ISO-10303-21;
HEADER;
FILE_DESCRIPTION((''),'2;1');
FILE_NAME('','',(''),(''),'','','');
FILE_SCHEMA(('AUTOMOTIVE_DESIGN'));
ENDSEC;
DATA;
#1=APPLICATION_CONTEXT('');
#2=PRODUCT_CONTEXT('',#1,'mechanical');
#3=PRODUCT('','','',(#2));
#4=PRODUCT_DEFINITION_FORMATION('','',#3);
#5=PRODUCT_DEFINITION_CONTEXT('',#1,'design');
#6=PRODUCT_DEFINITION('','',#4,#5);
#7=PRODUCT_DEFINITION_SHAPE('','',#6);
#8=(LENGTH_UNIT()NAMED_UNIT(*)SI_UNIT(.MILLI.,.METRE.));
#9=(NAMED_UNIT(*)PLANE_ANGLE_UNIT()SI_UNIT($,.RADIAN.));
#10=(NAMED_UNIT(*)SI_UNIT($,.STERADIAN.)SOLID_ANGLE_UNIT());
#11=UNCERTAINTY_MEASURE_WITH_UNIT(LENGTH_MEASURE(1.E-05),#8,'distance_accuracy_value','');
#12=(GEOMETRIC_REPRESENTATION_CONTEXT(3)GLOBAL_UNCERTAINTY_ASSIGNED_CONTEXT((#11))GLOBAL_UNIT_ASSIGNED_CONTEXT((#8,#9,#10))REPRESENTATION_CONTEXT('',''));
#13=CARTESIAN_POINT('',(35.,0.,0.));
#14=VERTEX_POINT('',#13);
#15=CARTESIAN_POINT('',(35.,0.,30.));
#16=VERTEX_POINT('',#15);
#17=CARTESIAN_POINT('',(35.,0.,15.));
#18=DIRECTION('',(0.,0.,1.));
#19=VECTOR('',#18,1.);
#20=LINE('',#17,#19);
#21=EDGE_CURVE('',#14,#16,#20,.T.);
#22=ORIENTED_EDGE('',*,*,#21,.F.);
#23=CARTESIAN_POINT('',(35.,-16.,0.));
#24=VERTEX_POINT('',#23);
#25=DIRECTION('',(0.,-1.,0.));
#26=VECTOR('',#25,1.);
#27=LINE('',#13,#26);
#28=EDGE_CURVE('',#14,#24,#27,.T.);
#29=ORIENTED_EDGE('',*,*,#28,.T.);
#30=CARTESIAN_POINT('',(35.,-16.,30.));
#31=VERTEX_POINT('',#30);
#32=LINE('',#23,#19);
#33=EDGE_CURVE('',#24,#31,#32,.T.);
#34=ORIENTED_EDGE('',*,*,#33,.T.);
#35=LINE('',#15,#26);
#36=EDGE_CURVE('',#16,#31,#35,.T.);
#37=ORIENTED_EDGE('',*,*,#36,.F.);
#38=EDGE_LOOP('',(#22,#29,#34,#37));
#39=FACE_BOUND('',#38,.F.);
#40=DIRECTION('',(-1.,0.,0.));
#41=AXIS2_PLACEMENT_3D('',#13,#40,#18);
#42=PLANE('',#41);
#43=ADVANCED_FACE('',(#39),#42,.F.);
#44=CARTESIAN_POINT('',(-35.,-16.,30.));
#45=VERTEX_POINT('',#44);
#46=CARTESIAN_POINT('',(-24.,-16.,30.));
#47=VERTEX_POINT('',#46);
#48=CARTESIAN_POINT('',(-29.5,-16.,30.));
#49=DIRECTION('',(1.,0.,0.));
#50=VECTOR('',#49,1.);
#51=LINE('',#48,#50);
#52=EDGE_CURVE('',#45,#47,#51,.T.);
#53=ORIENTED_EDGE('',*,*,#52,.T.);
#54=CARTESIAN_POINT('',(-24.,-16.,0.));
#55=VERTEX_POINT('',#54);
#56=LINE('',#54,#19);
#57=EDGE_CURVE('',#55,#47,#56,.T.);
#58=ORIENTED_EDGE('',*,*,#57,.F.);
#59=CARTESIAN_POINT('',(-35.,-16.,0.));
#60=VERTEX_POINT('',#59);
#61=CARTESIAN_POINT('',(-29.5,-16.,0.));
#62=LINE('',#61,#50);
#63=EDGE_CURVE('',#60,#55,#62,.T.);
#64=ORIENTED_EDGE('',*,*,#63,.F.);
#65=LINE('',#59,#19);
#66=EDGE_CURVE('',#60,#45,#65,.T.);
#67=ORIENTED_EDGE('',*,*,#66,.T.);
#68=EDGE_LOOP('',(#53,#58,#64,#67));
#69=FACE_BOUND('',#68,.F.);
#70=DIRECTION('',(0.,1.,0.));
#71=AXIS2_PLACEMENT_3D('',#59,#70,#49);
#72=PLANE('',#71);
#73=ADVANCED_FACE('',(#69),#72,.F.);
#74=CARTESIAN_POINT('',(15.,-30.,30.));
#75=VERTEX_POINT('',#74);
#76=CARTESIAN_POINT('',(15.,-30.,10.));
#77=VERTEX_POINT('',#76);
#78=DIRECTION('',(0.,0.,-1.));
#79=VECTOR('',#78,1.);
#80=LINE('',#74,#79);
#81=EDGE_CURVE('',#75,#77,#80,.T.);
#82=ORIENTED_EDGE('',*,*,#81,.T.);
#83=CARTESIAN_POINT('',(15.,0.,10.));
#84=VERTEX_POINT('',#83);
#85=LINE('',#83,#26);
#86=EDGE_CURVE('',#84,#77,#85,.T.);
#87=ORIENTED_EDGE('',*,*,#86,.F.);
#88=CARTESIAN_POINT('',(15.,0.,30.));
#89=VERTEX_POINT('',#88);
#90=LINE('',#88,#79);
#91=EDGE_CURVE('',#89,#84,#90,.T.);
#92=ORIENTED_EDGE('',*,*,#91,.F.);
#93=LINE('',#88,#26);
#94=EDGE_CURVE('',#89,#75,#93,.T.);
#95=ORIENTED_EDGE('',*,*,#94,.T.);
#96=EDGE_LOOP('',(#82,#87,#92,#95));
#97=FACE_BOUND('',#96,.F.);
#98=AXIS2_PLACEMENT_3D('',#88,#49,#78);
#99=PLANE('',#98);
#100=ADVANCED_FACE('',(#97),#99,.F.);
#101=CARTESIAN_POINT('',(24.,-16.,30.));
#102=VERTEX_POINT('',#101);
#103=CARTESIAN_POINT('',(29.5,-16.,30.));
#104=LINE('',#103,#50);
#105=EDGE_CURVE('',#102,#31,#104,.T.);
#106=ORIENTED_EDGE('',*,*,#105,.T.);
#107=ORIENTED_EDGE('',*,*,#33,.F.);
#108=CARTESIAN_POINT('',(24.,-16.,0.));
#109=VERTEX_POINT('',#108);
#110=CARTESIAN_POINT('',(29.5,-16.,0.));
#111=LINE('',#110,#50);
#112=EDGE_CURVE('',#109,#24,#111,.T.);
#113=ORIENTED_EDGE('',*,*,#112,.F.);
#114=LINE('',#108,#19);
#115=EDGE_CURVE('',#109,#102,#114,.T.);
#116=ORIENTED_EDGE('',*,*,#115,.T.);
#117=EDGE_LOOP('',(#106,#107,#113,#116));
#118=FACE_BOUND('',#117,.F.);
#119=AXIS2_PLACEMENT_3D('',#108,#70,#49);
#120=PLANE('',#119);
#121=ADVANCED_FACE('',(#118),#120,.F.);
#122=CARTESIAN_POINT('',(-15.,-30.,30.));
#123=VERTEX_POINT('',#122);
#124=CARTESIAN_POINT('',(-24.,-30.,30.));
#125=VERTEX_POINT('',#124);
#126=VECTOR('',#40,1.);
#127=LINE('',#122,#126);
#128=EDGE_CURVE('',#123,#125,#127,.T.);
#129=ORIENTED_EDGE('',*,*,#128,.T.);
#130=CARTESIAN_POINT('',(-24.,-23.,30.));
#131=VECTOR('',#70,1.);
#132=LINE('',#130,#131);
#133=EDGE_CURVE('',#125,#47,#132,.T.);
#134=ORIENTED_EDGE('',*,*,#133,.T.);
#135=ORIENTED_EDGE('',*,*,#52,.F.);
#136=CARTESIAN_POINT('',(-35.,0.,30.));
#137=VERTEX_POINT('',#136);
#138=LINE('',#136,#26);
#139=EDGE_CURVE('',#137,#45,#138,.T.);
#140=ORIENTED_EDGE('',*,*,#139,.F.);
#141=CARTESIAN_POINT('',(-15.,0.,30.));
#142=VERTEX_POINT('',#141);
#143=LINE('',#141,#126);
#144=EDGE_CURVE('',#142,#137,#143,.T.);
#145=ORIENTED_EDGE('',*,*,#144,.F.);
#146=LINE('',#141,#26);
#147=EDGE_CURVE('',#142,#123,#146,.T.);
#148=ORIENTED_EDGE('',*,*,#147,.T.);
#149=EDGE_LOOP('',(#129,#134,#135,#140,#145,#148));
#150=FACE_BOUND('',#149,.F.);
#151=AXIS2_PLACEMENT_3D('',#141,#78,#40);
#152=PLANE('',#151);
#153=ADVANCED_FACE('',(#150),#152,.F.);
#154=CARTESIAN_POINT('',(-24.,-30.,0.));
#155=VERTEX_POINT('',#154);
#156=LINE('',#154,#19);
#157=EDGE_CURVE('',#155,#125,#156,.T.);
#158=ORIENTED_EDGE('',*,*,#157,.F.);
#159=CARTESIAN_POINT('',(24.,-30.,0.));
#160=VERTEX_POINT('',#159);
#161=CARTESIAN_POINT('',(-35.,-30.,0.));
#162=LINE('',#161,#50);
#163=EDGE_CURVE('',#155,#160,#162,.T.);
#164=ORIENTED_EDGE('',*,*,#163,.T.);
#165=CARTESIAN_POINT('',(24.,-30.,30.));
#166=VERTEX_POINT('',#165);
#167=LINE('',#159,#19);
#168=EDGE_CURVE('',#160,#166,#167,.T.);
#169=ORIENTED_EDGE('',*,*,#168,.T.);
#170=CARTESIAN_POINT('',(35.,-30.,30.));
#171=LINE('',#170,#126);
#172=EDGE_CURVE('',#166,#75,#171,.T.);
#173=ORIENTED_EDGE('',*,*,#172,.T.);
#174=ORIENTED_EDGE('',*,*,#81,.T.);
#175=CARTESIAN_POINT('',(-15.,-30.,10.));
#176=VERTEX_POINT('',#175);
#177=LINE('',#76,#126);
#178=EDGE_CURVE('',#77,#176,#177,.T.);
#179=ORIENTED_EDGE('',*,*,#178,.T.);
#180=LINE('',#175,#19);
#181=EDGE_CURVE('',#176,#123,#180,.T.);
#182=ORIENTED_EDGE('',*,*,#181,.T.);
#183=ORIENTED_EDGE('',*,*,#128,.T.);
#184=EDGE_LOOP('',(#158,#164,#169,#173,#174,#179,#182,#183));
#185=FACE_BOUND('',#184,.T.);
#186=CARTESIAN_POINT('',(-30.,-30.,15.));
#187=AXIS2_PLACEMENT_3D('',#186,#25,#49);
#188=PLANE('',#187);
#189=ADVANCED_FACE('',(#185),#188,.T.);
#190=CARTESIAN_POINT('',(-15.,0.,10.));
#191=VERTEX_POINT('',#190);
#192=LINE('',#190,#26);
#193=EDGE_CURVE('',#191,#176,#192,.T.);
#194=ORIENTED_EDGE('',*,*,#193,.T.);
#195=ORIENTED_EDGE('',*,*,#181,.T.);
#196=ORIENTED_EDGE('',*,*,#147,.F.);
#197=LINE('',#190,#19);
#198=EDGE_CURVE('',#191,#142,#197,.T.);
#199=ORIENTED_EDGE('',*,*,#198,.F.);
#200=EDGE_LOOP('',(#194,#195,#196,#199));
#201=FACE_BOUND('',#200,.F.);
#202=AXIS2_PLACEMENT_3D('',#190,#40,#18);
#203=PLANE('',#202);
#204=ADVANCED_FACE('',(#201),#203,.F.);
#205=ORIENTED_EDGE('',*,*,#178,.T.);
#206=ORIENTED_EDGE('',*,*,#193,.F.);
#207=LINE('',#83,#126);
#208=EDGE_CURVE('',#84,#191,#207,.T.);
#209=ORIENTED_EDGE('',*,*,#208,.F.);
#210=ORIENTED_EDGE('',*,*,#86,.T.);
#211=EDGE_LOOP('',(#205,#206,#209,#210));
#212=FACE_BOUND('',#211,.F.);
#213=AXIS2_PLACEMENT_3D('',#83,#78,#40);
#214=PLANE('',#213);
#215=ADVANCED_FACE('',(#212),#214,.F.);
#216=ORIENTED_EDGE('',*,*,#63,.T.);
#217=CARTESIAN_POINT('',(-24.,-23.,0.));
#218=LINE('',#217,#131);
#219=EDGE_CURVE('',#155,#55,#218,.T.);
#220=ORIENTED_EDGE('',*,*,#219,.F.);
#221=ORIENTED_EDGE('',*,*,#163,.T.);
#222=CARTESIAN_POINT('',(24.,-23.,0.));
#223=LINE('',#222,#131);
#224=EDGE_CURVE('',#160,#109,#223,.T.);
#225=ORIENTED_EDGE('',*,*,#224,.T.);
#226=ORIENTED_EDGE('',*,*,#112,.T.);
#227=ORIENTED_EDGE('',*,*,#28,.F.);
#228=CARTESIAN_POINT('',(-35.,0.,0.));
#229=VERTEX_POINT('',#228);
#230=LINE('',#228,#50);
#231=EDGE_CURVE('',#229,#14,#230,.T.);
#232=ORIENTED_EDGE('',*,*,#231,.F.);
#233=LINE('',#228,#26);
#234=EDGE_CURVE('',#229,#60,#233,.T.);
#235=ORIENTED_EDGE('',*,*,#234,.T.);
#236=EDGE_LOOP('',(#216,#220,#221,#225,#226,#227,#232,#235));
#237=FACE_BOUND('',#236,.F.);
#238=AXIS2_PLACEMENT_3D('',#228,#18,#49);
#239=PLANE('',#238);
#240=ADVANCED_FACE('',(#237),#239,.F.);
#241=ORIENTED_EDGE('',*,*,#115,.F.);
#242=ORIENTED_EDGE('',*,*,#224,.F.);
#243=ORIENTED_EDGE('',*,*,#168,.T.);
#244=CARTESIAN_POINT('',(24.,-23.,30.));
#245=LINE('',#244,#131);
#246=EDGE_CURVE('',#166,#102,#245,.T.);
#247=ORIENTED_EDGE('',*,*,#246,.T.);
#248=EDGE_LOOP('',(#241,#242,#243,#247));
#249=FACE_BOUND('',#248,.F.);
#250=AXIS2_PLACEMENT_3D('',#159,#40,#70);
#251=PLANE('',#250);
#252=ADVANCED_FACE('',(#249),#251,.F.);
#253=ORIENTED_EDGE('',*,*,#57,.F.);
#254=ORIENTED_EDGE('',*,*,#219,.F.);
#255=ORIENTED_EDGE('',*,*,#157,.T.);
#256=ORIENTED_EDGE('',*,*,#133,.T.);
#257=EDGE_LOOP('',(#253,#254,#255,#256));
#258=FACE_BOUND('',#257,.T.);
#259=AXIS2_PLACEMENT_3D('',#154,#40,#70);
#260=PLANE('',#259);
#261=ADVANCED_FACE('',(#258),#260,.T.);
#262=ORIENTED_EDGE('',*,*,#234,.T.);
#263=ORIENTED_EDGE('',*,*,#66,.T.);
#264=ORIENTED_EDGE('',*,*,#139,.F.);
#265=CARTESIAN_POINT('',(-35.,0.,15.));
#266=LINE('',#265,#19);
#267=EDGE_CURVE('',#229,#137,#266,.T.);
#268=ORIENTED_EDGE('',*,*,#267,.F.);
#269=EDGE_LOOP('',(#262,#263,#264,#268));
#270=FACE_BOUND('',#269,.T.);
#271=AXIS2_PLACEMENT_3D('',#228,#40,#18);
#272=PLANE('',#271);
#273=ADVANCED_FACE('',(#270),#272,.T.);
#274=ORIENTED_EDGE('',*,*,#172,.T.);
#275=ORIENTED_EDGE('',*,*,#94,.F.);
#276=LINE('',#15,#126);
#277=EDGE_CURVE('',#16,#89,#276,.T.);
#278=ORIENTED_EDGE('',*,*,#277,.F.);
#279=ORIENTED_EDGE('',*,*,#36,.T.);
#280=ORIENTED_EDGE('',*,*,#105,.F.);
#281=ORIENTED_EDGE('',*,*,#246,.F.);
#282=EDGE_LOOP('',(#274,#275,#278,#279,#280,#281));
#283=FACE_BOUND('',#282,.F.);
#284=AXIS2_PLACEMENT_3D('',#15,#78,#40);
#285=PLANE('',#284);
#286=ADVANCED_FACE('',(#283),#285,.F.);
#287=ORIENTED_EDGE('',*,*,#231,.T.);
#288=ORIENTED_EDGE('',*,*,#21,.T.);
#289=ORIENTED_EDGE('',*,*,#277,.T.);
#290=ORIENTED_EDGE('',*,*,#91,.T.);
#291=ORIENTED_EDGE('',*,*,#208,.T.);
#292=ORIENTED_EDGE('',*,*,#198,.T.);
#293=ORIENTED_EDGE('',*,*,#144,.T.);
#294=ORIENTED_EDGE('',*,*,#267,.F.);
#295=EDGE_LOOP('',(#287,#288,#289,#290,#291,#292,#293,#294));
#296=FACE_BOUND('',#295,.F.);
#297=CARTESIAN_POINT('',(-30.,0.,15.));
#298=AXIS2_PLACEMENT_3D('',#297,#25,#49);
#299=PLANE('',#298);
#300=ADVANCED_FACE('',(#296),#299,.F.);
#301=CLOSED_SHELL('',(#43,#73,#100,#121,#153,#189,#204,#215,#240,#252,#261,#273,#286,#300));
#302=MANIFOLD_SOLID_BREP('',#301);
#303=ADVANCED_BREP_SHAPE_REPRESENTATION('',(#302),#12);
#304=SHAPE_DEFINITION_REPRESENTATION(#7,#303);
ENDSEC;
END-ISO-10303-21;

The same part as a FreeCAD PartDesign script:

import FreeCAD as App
import Part
import Sketcher
Q = App.Units.Quantity

doc = App.newDocument("Part")
body = doc.addObject("PartDesign::Body", "Body")

sketch1 = body.newObject("Sketcher::SketchObject", "Sketch")
sketch1.AttachmentSupport = (doc.getObject("XZ_Plane"), [""])
sketch1.MapMode = "FlatFace"
sketch1.addGeometry([
    Part.LineSegment(App.Vector(-35, 30, 0), App.Vector(-35, 0, 0)),
    Part.LineSegment(App.Vector(-35, 0, 0), App.Vector(35, 0, 0)),
    Part.LineSegment(App.Vector(35, 0, 0), App.Vector(35, 30, 0)),
    Part.LineSegment(App.Vector(35, 30, 0), App.Vector(15, 30, 0)),
    Part.LineSegment(App.Vector(15, 30, 0), App.Vector(15, 10, 0)),
    Part.LineSegment(App.Vector(15, 10, 0), App.Vector(-15, 10, 0)),
    Part.LineSegment(App.Vector(-15, 10, 0), App.Vector(-15, 30, 0)),
    Part.LineSegment(App.Vector(-15, 30, 0), App.Vector(-35, 30, 0)),
], False)
sketch1.addConstraint([
    Sketcher.Constraint("Coincident", 0, 2, 1, 1),
    Sketcher.Constraint("Coincident", 1, 2, 2, 1),
    Sketcher.Constraint("Coincident", 2, 2, 3, 1),
    Sketcher.Constraint("Coincident", 3, 2, 4, 1),
    Sketcher.Constraint("Coincident", 4, 2, 5, 1),
    Sketcher.Constraint("Coincident", 5, 2, 6, 1),
    Sketcher.Constraint("Coincident", 6, 2, 7, 1),
    Sketcher.Constraint("Coincident", 7, 2, 0, 1),
    Sketcher.Constraint("Vertical", 0),
    Sketcher.Constraint("Horizontal", 1),
    Sketcher.Constraint("Vertical", 2),
    Sketcher.Constraint("Horizontal", 3),
    Sketcher.Constraint("Vertical", 4),
    Sketcher.Constraint("Horizontal", 5),
    Sketcher.Constraint("Vertical", 6),
    Sketcher.Constraint("Horizontal", 7),
    Sketcher.Constraint("Symmetric", 0, 2, 1, 2, -1, 1),
    Sketcher.Constraint("Symmetric", 3, 2, 6, 2, -2),
    Sketcher.Constraint("Equal", 5, 0),
    Sketcher.Constraint("Equal", 7, 4),
    Sketcher.Constraint("DistanceX", 1, 1, 1, 2, Q("70 mm")),
    Sketcher.Constraint("DistanceX", 3, 2, 3, 1, Q("20 mm")),
])
pad1 = body.newObject("PartDesign::Pad", "Pad")
pad1.Profile = sketch1
pad1.Length = 30

sketch2 = body.newObject("Sketcher::SketchObject", "Sketch001")
sketch2.AttachmentSupport = (doc.getObject("XY_Plane"), [""])
sketch2.MapMode = "FlatFace"
sketch2.addGeometry([
    Part.LineSegment(App.Vector(24, -16, 0), App.Vector(24, -30, 0)),
    Part.LineSegment(App.Vector(24, -30, 0), App.Vector(35, -30, 0)),
    Part.LineSegment(App.Vector(35, -30, 0), App.Vector(35, -16, 0)),
    Part.LineSegment(App.Vector(35, -16, 0), App.Vector(24, -16, 0)),
    Part.LineSegment(App.Vector(-35, -16, 0), App.Vector(-35, -30, 0)),
    Part.LineSegment(App.Vector(-35, -30, 0), App.Vector(-24, -30, 0)),
    Part.LineSegment(App.Vector(-24, -30, 0), App.Vector(-24, -16, 0)),
    Part.LineSegment(App.Vector(-24, -16, 0), App.Vector(-35, -16, 0)),
], False)
sketch2.addConstraint([
    Sketcher.Constraint("Coincident", 0, 2, 1, 1),
    Sketcher.Constraint("Coincident", 1, 2, 2, 1),
    Sketcher.Constraint("Coincident", 2, 2, 3, 1),
    Sketcher.Constraint("Coincident", 3, 2, 0, 1),
    Sketcher.Constraint("Coincident", 4, 2, 5, 1),
    Sketcher.Constraint("Coincident", 5, 2, 6, 1),
    Sketcher.Constraint("Coincident", 6, 2, 7, 1),
    Sketcher.Constraint("Coincident", 7, 2, 4, 1),
    Sketcher.Constraint("Vertical", 0),
    Sketcher.Constraint("Horizontal", 1),
    Sketcher.Constraint("Vertical", 2),
    Sketcher.Constraint("Horizontal", 3),
    Sketcher.Constraint("Vertical", 4),
    Sketcher.Constraint("Horizontal", 5),
    Sketcher.Constraint("Vertical", 6),
    Sketcher.Constraint("Horizontal", 7),
    Sketcher.Constraint("Symmetric", 1, 2, 4, 2, -2),
    Sketcher.Constraint("Symmetric", 3, 2, 6, 2, -2),
    Sketcher.Constraint("DistanceX", 1, 1, 1, 2, Q("11 mm")),
    Sketcher.Constraint("DistanceY", 0, 2, 0, 1, Q("14 mm")),
    Sketcher.Constraint("DistanceX", -1, 1, 0, 2, Q("24 mm")),
    Sketcher.Constraint("DistanceY", 0, 2, -1, 1, Q("30 mm")),
])
pocket1 = body.newObject("PartDesign::Pocket", "Pocket")
pocket1.Profile = sketch2
pocket1.Length = 30
pocket1.Reversed = True

doc.recompute()
